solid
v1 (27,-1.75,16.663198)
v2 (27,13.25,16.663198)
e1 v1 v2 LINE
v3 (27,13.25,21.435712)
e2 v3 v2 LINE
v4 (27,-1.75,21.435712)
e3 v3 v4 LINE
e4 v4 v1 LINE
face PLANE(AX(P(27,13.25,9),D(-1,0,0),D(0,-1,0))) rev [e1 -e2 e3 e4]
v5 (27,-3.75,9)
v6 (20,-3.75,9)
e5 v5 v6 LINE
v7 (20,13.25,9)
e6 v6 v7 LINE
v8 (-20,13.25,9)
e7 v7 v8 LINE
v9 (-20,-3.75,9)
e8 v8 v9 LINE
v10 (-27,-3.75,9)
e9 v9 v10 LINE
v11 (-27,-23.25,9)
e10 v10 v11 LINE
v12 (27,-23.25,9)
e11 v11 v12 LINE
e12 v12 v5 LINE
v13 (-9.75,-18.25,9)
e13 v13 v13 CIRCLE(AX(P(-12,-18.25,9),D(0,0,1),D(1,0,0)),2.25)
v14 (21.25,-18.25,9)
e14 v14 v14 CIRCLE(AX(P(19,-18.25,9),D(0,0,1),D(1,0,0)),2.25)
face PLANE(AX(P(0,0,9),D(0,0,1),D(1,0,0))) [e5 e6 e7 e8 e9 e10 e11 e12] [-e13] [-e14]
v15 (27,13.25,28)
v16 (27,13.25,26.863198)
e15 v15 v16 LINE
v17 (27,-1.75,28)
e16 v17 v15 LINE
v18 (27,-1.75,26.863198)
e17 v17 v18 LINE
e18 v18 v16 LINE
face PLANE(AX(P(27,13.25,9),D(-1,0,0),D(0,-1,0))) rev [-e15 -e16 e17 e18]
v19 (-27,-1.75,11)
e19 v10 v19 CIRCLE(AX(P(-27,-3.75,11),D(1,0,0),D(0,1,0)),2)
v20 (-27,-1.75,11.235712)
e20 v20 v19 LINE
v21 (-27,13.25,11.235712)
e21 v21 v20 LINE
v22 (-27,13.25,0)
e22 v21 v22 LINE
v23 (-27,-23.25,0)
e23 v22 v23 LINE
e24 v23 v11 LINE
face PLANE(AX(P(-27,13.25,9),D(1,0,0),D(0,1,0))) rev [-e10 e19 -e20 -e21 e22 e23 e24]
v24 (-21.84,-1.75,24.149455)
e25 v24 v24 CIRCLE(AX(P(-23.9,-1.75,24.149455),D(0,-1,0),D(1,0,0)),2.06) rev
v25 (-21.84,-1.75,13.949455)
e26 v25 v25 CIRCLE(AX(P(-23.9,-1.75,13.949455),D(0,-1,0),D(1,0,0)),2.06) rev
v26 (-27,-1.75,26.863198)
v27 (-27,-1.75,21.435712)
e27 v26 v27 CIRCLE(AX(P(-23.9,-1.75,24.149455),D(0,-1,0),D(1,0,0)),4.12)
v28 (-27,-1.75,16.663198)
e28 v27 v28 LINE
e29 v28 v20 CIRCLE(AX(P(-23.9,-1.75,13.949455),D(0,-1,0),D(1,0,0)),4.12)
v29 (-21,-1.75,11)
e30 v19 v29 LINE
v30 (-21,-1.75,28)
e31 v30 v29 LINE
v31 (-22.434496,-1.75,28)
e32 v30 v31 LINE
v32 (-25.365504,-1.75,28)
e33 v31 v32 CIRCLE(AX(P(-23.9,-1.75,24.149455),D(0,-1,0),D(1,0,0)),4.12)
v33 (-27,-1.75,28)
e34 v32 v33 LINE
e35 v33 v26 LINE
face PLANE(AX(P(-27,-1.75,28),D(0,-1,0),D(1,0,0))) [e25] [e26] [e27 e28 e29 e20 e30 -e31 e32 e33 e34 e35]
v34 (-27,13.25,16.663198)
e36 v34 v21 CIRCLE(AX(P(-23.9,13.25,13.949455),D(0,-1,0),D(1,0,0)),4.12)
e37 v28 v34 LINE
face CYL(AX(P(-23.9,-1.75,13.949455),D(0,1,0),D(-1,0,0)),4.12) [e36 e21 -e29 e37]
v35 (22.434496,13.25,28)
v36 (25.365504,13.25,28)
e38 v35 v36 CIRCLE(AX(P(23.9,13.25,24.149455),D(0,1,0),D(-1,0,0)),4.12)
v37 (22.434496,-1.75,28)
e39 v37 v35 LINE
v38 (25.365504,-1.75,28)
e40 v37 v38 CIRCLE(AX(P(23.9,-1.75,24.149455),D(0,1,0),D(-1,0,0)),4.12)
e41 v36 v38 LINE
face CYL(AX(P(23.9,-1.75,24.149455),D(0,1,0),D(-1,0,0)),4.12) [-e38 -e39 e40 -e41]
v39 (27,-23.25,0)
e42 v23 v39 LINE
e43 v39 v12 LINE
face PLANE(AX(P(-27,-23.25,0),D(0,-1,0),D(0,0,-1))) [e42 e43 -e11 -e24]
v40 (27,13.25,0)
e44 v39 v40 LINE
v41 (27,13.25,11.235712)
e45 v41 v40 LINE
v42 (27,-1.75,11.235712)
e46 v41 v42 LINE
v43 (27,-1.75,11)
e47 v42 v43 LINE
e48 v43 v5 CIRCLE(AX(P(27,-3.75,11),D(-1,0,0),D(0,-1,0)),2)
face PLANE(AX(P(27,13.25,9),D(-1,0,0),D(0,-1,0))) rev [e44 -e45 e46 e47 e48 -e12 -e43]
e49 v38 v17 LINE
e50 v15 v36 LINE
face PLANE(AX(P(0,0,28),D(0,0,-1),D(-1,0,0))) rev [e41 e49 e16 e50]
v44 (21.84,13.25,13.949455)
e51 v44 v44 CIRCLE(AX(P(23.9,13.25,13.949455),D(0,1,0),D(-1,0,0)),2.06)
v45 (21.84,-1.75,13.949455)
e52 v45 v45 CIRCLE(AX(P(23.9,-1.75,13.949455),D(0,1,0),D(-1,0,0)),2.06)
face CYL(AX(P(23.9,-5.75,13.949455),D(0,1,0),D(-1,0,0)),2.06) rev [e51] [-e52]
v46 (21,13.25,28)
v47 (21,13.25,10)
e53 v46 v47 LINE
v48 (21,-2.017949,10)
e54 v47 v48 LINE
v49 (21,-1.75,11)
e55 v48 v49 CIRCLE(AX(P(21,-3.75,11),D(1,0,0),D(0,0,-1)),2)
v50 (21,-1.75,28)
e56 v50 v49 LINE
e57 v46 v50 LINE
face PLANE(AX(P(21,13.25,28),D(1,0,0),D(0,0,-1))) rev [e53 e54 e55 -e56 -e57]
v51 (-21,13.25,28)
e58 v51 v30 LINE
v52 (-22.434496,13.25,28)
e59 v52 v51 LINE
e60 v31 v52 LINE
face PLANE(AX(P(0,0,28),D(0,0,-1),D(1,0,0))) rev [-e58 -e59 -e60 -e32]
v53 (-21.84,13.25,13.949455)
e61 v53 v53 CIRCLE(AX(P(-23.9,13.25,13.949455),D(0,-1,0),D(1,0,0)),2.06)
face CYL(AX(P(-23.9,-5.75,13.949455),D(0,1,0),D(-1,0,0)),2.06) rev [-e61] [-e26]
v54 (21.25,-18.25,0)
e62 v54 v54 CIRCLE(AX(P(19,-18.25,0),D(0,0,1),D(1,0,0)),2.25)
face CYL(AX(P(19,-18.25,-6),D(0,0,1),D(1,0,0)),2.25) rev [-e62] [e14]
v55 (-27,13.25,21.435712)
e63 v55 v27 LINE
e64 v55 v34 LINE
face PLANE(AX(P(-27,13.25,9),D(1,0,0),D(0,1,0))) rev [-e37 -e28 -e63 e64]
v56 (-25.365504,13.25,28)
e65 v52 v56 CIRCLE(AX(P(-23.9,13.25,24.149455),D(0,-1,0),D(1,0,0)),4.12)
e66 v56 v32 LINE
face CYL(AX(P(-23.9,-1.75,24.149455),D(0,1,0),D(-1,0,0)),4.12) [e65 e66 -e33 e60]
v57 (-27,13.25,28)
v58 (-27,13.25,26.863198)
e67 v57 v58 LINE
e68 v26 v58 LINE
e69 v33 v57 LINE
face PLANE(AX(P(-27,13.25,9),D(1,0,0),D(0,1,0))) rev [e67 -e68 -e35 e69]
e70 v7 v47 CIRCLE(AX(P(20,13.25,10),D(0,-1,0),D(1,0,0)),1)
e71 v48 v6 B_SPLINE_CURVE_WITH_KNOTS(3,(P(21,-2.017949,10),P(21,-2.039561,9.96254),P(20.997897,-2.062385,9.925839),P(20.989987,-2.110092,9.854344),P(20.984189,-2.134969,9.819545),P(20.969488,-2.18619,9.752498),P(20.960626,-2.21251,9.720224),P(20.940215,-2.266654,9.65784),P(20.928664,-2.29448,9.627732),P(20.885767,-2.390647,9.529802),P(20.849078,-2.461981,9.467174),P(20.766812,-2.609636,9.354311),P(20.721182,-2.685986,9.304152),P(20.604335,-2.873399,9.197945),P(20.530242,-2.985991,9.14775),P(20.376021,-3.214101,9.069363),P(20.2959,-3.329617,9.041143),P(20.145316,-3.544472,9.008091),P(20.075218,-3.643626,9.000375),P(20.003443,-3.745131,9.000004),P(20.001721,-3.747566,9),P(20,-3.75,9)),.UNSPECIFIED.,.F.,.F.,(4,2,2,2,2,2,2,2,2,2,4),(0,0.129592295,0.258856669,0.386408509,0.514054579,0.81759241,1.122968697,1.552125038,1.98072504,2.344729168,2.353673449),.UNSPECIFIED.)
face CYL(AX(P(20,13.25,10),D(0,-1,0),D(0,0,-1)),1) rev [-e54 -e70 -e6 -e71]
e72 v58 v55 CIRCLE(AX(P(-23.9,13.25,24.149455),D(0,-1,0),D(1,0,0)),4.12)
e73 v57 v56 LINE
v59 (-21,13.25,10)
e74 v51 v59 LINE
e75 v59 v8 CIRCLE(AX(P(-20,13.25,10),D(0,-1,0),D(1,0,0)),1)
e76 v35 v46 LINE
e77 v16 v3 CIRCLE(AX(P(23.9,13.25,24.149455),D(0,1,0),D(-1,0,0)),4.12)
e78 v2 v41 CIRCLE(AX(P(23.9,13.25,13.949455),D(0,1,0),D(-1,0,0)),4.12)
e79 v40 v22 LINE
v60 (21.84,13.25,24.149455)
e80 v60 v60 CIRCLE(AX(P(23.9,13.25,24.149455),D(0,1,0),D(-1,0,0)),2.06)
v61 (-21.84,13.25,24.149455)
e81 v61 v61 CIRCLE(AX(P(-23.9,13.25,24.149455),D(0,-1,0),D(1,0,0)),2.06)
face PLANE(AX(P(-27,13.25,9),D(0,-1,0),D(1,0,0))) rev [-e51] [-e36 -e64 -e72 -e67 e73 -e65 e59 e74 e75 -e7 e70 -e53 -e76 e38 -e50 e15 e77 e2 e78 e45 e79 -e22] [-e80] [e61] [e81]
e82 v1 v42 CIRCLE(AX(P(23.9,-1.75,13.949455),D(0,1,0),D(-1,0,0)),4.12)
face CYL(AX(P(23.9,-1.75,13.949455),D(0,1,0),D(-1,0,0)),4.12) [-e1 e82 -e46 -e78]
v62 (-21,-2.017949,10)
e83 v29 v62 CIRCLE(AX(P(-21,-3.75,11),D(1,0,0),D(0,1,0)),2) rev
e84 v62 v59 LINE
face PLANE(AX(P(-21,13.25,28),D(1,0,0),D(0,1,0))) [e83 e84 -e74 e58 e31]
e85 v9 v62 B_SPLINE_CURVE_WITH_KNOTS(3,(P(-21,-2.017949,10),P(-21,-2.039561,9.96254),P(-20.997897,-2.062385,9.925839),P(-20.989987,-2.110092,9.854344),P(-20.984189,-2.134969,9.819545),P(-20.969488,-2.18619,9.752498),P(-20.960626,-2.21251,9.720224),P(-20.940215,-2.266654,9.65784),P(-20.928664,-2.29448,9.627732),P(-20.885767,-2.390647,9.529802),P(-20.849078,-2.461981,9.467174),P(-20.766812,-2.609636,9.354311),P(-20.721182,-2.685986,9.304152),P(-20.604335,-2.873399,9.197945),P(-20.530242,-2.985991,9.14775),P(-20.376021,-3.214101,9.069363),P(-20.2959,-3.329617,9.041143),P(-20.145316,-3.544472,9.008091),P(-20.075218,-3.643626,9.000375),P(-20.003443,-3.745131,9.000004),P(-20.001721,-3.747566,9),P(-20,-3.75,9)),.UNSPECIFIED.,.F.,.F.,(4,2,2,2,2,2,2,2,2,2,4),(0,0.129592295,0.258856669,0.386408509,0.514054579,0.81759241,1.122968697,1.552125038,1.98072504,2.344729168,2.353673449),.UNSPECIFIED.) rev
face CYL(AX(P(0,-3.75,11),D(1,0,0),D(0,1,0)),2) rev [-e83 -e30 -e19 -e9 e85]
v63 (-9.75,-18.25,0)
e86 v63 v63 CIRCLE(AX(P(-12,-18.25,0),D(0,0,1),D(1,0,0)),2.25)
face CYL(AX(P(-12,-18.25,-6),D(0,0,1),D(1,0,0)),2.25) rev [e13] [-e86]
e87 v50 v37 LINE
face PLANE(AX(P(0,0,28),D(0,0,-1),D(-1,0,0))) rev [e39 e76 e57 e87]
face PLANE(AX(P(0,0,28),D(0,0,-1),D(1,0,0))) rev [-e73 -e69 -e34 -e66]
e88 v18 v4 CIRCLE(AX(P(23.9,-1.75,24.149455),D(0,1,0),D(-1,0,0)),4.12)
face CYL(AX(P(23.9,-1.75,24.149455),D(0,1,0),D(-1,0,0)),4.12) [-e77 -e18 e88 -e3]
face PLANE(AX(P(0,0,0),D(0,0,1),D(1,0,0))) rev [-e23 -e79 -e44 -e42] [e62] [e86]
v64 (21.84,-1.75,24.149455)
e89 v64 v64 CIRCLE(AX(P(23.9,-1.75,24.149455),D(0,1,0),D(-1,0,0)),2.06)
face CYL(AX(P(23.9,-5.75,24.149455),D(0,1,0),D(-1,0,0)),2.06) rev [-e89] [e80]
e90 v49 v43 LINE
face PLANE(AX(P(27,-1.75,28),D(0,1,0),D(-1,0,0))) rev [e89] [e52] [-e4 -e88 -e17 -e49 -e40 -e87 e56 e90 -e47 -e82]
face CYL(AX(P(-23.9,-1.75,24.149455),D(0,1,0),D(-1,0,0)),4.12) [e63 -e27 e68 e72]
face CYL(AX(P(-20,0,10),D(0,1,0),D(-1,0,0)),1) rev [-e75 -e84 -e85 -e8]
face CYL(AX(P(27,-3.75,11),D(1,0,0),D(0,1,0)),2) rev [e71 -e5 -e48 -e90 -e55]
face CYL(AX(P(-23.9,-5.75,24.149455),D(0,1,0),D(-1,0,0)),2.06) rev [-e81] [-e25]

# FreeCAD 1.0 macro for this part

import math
import FreeCAD as App
import Part
import Sketcher

V = App.Vector
Q = App.Units.Quantity


def edges_at(feature, points):
    """Names of the edges that pass closest to the given points."""
    edges = feature.Shape.Edges
    near = lambda p: min(range(len(edges)), key=lambda i: edges[i].distToShape(Part.Vertex(*p))[0])
    return sorted({f"Edge{near(p) + 1}" for p in points})

doc = App.newDocument("Part")
body = doc.addObject("PartDesign::Body", "Body")

sketch1 = body.newObject("Sketcher::SketchObject", "Sketch")
sketch1.AttachmentSupport = (doc.getObject("XY_Plane"), [""])
sketch1.MapMode = "FlatFace"
sketch1.addGeometry([
    Part.LineSegment(V(-27, 13.25, 0), V(-27, -13.25, 0)),
    Part.LineSegment(V(-27, -13.25, 0), V(27, -13.25, 0)),
    Part.LineSegment(V(27, -13.25, 0), V(27, 13.25, 0)),
    Part.LineSegment(V(27, 13.25, 0), V(-27, 13.25, 0)),
], False)
sketch1.addConstraint([
    Sketcher.Constraint("Coincident", 0, 2, 1, 1),
    Sketcher.Constraint("Coincident", 1, 2, 2, 1),
    Sketcher.Constraint("Coincident", 2, 2, 3, 1),
    Sketcher.Constraint("Coincident", 3, 2, 0, 1),
    Sketcher.Constraint("Vertical", 0),
    Sketcher.Constraint("Horizontal", 1),
    Sketcher.Constraint("Vertical", 2),
    Sketcher.Constraint("Horizontal", 3),
    Sketcher.Constraint("Symmetric", 0, 2, 2, 2, -1, 1),
    Sketcher.Constraint("DistanceX", 1, 1, 1, 2, Q("54 mm")),
    Sketcher.Constraint("DistanceY", 0, 2, 0, 1, Q("26.5 mm")),
])
pad1 = body.newObject("PartDesign::Pad", "Pad")
pad1.Profile = sketch1
pad1.Length = 9

sketch2 = body.newObject("Sketcher::SketchObject", "Sketch001")
sketch2.AttachmentSupport = (doc.getObject("XY_Plane"), [""])
sketch2.MapMode = "FlatFace"
sketch2.AttachmentOffset = App.Placement(V(0, 0, 9), App.Rotation())
sketch2.addGeometry([
    Part.LineSegment(V(21, 13.25, 0), V(21, -1.75, 0)),
    Part.LineSegment(V(21, -1.75, 0), V(27, -1.75, 0)),
    Part.LineSegment(V(27, -1.75, 0), V(27, 13.25, 0)),
    Part.LineSegment(V(27, 13.25, 0), V(21, 13.25, 0)),
], False)
sketch2.addConstraint([
    Sketcher.Constraint("Coincident", 0, 2, 1, 1),
    Sketcher.Constraint("Coincident", 1, 2, 2, 1),
    Sketcher.Constraint("Coincident", 2, 2, 3, 1),
    Sketcher.Constraint("Coincident", 3, 2, 0, 1),
    Sketcher.Constraint("Vertical", 0),
    Sketcher.Constraint("Horizontal", 1),
    Sketcher.Constraint("Vertical", 2),
    Sketcher.Constraint("Horizontal", 3),
    Sketcher.Constraint("DistanceX", 1, 1, 1, 2, Q("6 mm")),
    Sketcher.Constraint("DistanceY", 0, 2, 0, 1, Q("15 mm")),
    Sketcher.Constraint("DistanceX", -1, 1, 0, 2, Q("21 mm")),
    Sketcher.Constraint("DistanceY", 0, 2, -1, 1, Q("1.75 mm")),
])
pad2 = body.newObject("PartDesign::Pad", "Pad001")
pad2.Profile = sketch2
pad2.Length = 19

sketch3 = body.newObject("Sketcher::SketchObject", "Sketch002")
sketch3.AttachmentSupport = (doc.getObject("XZ_Plane"), [""])
sketch3.MapMode = "FlatFace"
sketch3.AttachmentOffset = App.Placement(V(0, 0, -13.25), App.Rotation())
sketch3.addGeometry([
    Part.Circle(V(23.9, 13.949455, 0), V(0, 0, 1), 2.06),
    Part.Circle(V(23.9, 24.149455, 0), V(0, 0, 1), 2.06),
], False)
sketch3.addConstraint([
    Sketcher.Constraint("Equal", 0, 1),
    Sketcher.Constraint("Vertical", 0, 3, 1, 3),
    Sketcher.Constraint("Diameter", 0, Q("4.12 mm")),
    Sketcher.Constraint("DistanceX", -1, 1, 0, 3, Q("23.9 mm")),
    Sketcher.Constraint("DistanceY", 0, 3, 1, 3, Q("10.2 mm")),
    Sketcher.Constraint("DistanceY", -1, 1, 0, 3, Q("13.949455 mm")),
])
pocket1 = body.newObject("PartDesign::Pocket", "Pocket")
pocket1.Profile = sketch3
pocket1.Length = 19
pocket1.Reversed = True

sketch4 = body.newObject("Sketcher::SketchObject", "Sketch003")
sketch4.AttachmentSupport = (doc.getObject("XZ_Plane"), [""])
sketch4.MapMode = "FlatFace"
sketch4.AttachmentOffset = App.Placement(V(0, 0, -13.25), App.Rotation())
sketch4.addGeometry([
    Part.LineSegment(V(21, 21.222955, 0), V(21, 27.075955, 0)),
    Part.ArcOfCircle(Part.Circle(V(23.9, 24.149455, 0), V(0, 0, 1), 4.12), math.radians(-134.739414), math.radians(134.739414)),
    Part.Circle(V(23.9, 24.149455, 0), V(0, 0, 1), 2.06),
    Part.LineSegment(V(21, 11.022955, 0), V(21, 16.875955, 0)),
    Part.ArcOfCircle(Part.Circle(V(23.9, 13.949455, 0), V(0, 0, 1), 4.12), math.radians(-134.739414), math.radians(134.739414)),
    Part.Circle(V(23.9, 13.949455, 0), V(0, 0, 1), 2.06),
], False)
sketch4.addConstraint([
    Sketcher.Constraint("Coincident", 0, 1, 1, 1),
    Sketcher.Constraint("Coincident", 1, 2, 0, 2),
    Sketcher.Constraint("Coincident", 3, 1, 4, 1),
    Sketcher.Constraint("Coincident", 4, 2, 3, 2),
    Sketcher.Constraint("Vertical", 0),
    Sketcher.Constraint("Vertical", 3),
    Sketcher.Constraint("Coincident", 2, 3, 1, 3),
    Sketcher.Constraint("Coincident", 5, 3, 4, 3),
    Sketcher.Constraint("Equal", 1, 4),
    Sketcher.Constraint("Equal", 2, 5),
    Sketcher.Constraint("Vertical", 2, 3, 4, 3),
    Sketcher.Constraint("Vertical", 1, 2, 3, 1),
    Sketcher.Constraint("Diameter", 2, Q("4.12 mm")),
    Sketcher.Constraint("Radius", 1, Q("4.12 mm")),
    Sketcher.Constraint("DistanceX", -1, 1, 0, 1, Q("21 mm")),
    Sketcher.Constraint("DistanceX", -1, 1, 1, 3, Q("23.9 mm")),
    Sketcher.Constraint("DistanceY", 4, 3, 1, 3, Q("10.2 mm")),
    Sketcher.Constraint("DistanceY", -1, 1, 1, 3, Q("24.149455 mm")),
])
pad3 = body.newObject("PartDesign::Pad", "Pad002")
pad3.Profile = sketch4
pad3.Length = 15

sketch5 = body.newObject("Sketcher::SketchObject", "Sketch004")
sketch5.AttachmentSupport = (doc.getObject("XY_Plane"), [""])
sketch5.MapMode = "FlatFace"
sketch5.AttachmentOffset = App.Placement(V(0, 0, 9), App.Rotation())
sketch5.addGeometry([
    Part.LineSegment(V(-27, -13.25, 0), V(-27, -23.25, 0)),
    Part.LineSegment(V(-27, -23.25, 0), V(27, -23.25, 0)),
    Part.LineSegment(V(27, -23.25, 0), V(27, -13.25, 0)),
    Part.LineSegment(V(27, -13.25, 0), V(-27, -13.25, 0)),
], False)
sketch5.addConstraint([
    Sketcher.Constraint("Coincident", 0, 2, 1, 1),
    Sketcher.Constraint("Coincident", 1, 2, 2, 1),
    Sketcher.Constraint("Coincident", 2, 2, 3, 1),
    Sketcher.Constraint("Coincident", 3, 2, 0, 1),
    Sketcher.Constraint("Vertical", 0),
    Sketcher.Constraint("Horizontal", 1),
    Sketcher.Constraint("Vertical", 2),
    Sketcher.Constraint("Horizontal", 3),
    Sketcher.Constraint("DistanceX", 1, 1, 1, 2, Q("54 mm")),
    Sketcher.Constraint("DistanceY", 0, 2, 0, 1, Q("10 mm")),
    Sketcher.Constraint("DistanceX", 0, 2, -1, 1, Q("27 mm")),
    Sketcher.Constraint("DistanceY", 0, 2, -1, 1, Q("23.25 mm")),
])
pad4 = body.newObject("PartDesign::Pad", "Pad003")
pad4.Profile = sketch5
pad4.Length = 9
pad4.Reversed = True

sketch6 = body.newObject("Sketcher::SketchObject", "Sketch005")
sketch6.AttachmentSupport = (doc.getObject("XY_Plane"), [""])
sketch6.MapMode = "FlatFace"
sketch6.AttachmentOffset = App.Placement(V(0, 0, 9), App.Rotation())
sketch6.addGeometry([
    Part.Circle(V(19, -18.25, 0), V(0, 0, 1), 2.25),
    Part.Circle(V(-12, -18.25, 0), V(0, 0, 1), 2.25),
], False)
sketch6.addConstraint([
    Sketcher.Constraint("Equal", 0, 1),
    Sketcher.Constraint("Horizontal", 0, 3, 1, 3),
    Sketcher.Constraint("Diameter", 0, Q("4.5 mm")),
    Sketcher.Constraint("DistanceX", -1, 1, 0, 3, Q("19 mm")),
    Sketcher.Constraint("DistanceX", 1, 3, -1, 1, Q("12 mm")),
    Sketcher.Constraint("DistanceY", 0, 3, -1, 1, Q("18.25 mm")),
])
pocket2 = body.newObject("PartDesign::Pocket", "Pocket001")
pocket2.Profile = sketch6
pocket2.Length = 15
doc.recompute()

mirrored = body.newObject("PartDesign::Mirrored", "Mirrored")
mirrored.Originals = [pad1, pad2, pocket1, pad3]
mirrored.MirrorPlane = (doc.getObject("YZ_Plane"), [""])
body.Tip = mirrored
doc.recompute()

fillet = body.newObject("PartDesign::Fillet", "Fillet")
fillet.Base = (mirrored, edges_at(mirrored, [(-24, -1.75, 9), (24, -1.75, 9)]))
fillet.Radius = 2
doc.recompute()

fillet2 = body.newObject("PartDesign::Fillet", "Fillet001")
fillet2.Base = (fillet, edges_at(fillet, [(-21, 4.75, 9), (21, 4.75, 9)]))
fillet2.Radius = 1

doc.recompute()
